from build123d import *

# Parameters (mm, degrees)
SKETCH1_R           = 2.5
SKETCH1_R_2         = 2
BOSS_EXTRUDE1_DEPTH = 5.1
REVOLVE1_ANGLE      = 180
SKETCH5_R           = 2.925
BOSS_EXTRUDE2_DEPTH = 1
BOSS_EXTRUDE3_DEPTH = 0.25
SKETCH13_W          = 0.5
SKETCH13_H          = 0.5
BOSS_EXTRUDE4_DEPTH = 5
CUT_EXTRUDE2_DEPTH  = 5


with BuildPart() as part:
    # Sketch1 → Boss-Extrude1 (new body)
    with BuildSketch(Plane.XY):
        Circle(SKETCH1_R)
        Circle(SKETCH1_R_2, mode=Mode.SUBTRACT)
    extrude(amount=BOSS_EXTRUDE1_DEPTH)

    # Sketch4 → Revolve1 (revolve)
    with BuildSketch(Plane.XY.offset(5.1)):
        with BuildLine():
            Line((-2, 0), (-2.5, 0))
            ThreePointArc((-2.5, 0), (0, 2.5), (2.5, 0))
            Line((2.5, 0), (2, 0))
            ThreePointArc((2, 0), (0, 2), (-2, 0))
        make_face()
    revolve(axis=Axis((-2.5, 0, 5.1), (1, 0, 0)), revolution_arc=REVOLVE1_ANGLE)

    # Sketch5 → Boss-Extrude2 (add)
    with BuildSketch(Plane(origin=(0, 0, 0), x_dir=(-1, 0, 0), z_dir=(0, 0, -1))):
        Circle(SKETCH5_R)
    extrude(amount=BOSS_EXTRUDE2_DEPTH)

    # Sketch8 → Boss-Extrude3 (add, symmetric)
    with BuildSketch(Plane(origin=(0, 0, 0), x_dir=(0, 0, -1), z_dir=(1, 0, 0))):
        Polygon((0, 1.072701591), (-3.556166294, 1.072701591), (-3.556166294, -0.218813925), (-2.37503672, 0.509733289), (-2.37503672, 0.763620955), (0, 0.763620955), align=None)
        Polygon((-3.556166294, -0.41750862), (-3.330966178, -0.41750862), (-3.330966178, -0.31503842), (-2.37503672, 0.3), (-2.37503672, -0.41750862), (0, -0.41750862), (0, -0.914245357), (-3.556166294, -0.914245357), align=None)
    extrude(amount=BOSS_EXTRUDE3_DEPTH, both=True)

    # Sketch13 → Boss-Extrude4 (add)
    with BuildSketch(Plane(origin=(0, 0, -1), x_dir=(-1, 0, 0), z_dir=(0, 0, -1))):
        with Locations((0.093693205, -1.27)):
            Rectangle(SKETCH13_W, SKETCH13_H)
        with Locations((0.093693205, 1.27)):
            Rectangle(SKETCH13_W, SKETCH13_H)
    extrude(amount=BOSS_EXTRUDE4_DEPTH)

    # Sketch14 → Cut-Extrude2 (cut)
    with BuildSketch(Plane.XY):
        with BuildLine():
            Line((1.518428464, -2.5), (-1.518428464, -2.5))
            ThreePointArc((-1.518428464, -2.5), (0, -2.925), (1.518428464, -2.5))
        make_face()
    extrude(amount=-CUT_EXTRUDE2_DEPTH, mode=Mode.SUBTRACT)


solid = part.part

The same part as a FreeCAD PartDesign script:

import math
import FreeCAD as App
import Part
import Sketcher
from FreeCAD import Vector

doc = App.newDocument("Part")
body = doc.addObject("PartDesign::Body", "Body")

# Sketch on XY plane
sketch1 = doc.addObject("Sketcher::SketchObject", "Sketch")
body.addObject(sketch1)
sketch1.AttachmentSupport = (doc.XY_Plane, [""])
sketch1.MapMode = "FlatFace"
sketch1.addGeometry([
    Part.Circle(Vector(0, 0, 0), Vector(0, 0, 1), 2.5),
    Part.Circle(Vector(0, 0, 0), Vector(0, 0, 1), 2),
], False)
sketch1.addConstraint([
    Sketcher.Constraint("Coincident", 0, 3, -1, 1),
    Sketcher.Constraint("Coincident", 1, 3, -1, 1),
    Sketcher.Constraint("Diameter", 0, 5.0),
    Sketcher.Constraint("Diameter", 1, 4.0),
])
pad1 = doc.addObject("PartDesign::Pad", "Pad")
body.addObject(pad1)
pad1.Profile = sketch1
pad1.Length = 5.1

# Sketch on XY plane
sketch2 = doc.addObject("Sketcher::SketchObject", "Sketch001")
body.addObject(sketch2)
sketch2.AttachmentSupport = (doc.XY_Plane, [""])
sketch2.MapMode = "FlatFace"
sketch2.AttachmentOffset = App.Placement(Vector(0, 0, 5.1), App.Rotation())
sketch2.addGeometry([
    Part.LineSegment(Vector(-2.5, 0, 0), Vector(-2, 0, 0)),
    Part.ArcOfCircle(Part.Circle(Vector(0, 0, 0), Vector(0, 0, 1), 2), math.radians(0), math.radians(180)),
    Part.LineSegment(Vector(2, 0, 0), Vector(2.5, 0, 0)),
    Part.ArcOfCircle(Part.Circle(Vector(0, 0, 0), Vector(0, 0, 1), 2.5), math.radians(0), math.radians(180)),
], False)
sketch2.addConstraint([
    Sketcher.Constraint("Coincident", 0, 2, 1, 2),
    Sketcher.Constraint("Coincident", 1, 1, 2, 1),
    Sketcher.Constraint("Coincident", 2, 2, 3, 1),
    Sketcher.Constraint("Coincident", 3, 2, 0, 1),
    Sketcher.Constraint("Horizontal", 0),
    Sketcher.Constraint("Horizontal", 2),
    Sketcher.Constraint("Coincident", 1, 3, -1, 1),
    Sketcher.Constraint("Coincident", 3, 3, -1, 1),
    Sketcher.Constraint("PointOnObject", 0, 2, -1),
    Sketcher.Constraint("PointOnObject", 1, 1, -1),
    Sketcher.Constraint("Radius", 1, 2.0),
    Sketcher.Constraint("Radius", 3, 2.5),
])
revolution = doc.addObject("PartDesign::Revolution", "Revolution")
body.addObject(revolution)
revolution.Profile = sketch2
revolution.ReferenceAxis = (sketch2, ["H_Axis"])
revolution.Angle = 180

# Sketch on XY plane
sketch3 = doc.addObject("Sketcher::SketchObject", "Sketch002")
body.addObject(sketch3)
sketch3.AttachmentSupport = (doc.XY_Plane, [""])
sketch3.MapMode = "FlatFace"
sketch3.addGeometry(Part.Circle(Vector(0, 0, 0), Vector(0, 0, 1), 2.9), False)
sketch3.addConstraint([
    Sketcher.Constraint("Coincident", 0, 3, -1, 1),
    Sketcher.Constraint("Diameter", 0, 5.85),
])
pad2 = doc.addObject("PartDesign::Pad", "Pad001")
body.addObject(pad2)
pad2.Profile = sketch3
pad2.Length = 1
pad2.Reversed = True

# Sketch on YZ plane
sketch4 = doc.addObject("Sketcher::SketchObject", "Sketch003")
body.addObject(sketch4)
sketch4.AttachmentSupport = (doc.YZ_Plane, [""])
sketch4.MapMode = "FlatFace"
sketch4.addGeometry([
    Part.LineSegment(Vector(1.07, 0, 0), Vector(1.07, 3.56, 0)),  # 0
    Part.LineSegment(Vector(1.07, 3.56, 0), Vector(-0.22, 3.56, 0)),  # 1
    Part.LineSegment(Vector(-0.22, 3.56, 0), Vector(0.51, 2.38, 0)),  # 2
    Part.LineSegment(Vector(0.51, 2.38, 0), Vector(0.76, 2.38, 0)),  # 3
    Part.LineSegment(Vector(0.76, 2.38, 0), Vector(0.76, 0, 0)),  # 4
    Part.LineSegment(Vector(0.76, 0, 0), Vector(1.07, 0, 0)),  # 5
    Part.LineSegment(Vector(-0.42, 3.33, 0), Vector(-0.42, 3.56, 0)),  # 6
    Part.LineSegment(Vector(-0.42, 3.56, 0), Vector(-0.91, 3.56, 0)),  # 7
    Part.LineSegment(Vector(-0.91, 3.56, 0), Vector(-0.91, 0, 0)),  # 8
    Part.LineSegment(Vector(-0.91, 0, 0), Vector(-0.42, 0, 0)),  # 9
    Part.LineSegment(Vector(-0.42, 0, 0), Vector(-0.42, 2.38, 0)),  # 10
    Part.LineSegment(Vector(-0.42, 2.38, 0), Vector(0.3, 2.38, 0)),  # 11
    Part.LineSegment(Vector(0.3, 2.38, 0), Vector(-0.32, 3.33, 0)),  # 12
    Part.LineSegment(Vector(-0.32, 3.33, 0), Vector(-0.42, 3.33, 0)),  # 13
], False)
sketch4.addConstraint([
    Sketcher.Constraint("Coincident", 0, 2, 1, 1),
    Sketcher.Constraint("Coincident", 1, 2, 2, 1),
    Sketcher.Constraint("Coincident", 2, 2, 3, 1),
    Sketcher.Constraint("Coincident", 3, 2, 4, 1),
    Sketcher.Constraint("Coincident", 4, 2, 5, 1),
    Sketcher.Constraint("Coincident", 5, 2, 0, 1),
    Sketcher.Constraint("Coincident", 6, 2, 7, 1),
    Sketcher.Constraint("Coincident", 7, 2, 8, 1),
    Sketcher.Constraint("Coincident", 8, 2, 9, 1),
    Sketcher.Constraint("Coincident", 9, 2, 10, 1),
    Sketcher.Constraint("Coincident", 10, 2, 11, 1),
    Sketcher.Constraint("Coincident", 11, 2, 12, 1),
    Sketcher.Constraint("Coincident", 12, 2, 13, 1),
    Sketcher.Constraint("Coincident", 13, 2, 6, 1),
    Sketcher.Constraint("Vertical", 0),
    Sketcher.Constraint("Horizontal", 1),
    Sketcher.Constraint("Horizontal", 3),
    Sketcher.Constraint("Vertical", 4),
    Sketcher.Constraint("Horizontal", 5),
    Sketcher.Constraint("Vertical", 6),
    Sketcher.Constraint("Horizontal", 7),
    Sketcher.Constraint("Vertical", 8),
    Sketcher.Constraint("Horizontal", 9),
    Sketcher.Constraint("Vertical", 10),
    Sketcher.Constraint("Horizontal", 11),
    Sketcher.Constraint("Horizontal", 13),
    Sketcher.Constraint("PointOnObject", 4, 2, -1),
    Sketcher.Constraint("PointOnObject", 8, 2, -1),
    Sketcher.Constraint("Horizontal", 1, 2, 6, 2),
    Sketcher.Constraint("Horizontal", 3, 2, 10, 2),
    Sketcher.Constraint("Vertical", 6, 2, 9, 2),
    Sketcher.Constraint("DistanceX", -1, 1, 11, 2, 0.3),
    Sketcher.Constraint("DistanceY", 6, 1, 6, 2, 0.2252),
    Sketcher.Constraint("DistanceX", 5, 1, 5, 2, 0.309081),
    Sketcher.Constraint("DistanceX", 11, 1, 11, 2, 0.717509),
    Sketcher.Constraint("DistanceX", 13, 2, 13, 1, 0.10247),
    Sketcher.Constraint("DistanceX", -1, 1, 0, 2, 1.072702),
    Sketcher.Constraint("Distance", 2, 1.387749),
    Sketcher.Constraint("DistanceX", 1, 2, 1, 1, 1.291516),
    Sketcher.Constraint("DistanceX", 3, 1, 3, 2, 0.253888),
    Sketcher.Constraint("DistanceX", 7, 2, 7, 1, 0.496737),
    Sketcher.Constraint("DistanceY", 0, 1, 0, 2, 3.556166),
])
pad3 = doc.addObject("PartDesign::Pad", "Pad002")
body.addObject(pad3)
pad3.Profile = sketch4
pad3.Length = 0.5
pad3.Midplane = True

# Sketch on XY plane
sketch5 = doc.addObject("Sketcher::SketchObject", "Sketch004")
body.addObject(sketch5)
sketch5.AttachmentSupport = (doc.XY_Plane, [""])
sketch5.MapMode = "FlatFace"
sketch5.AttachmentOffset = App.Placement(Vector(0, 0, -1), App.Rotation())
sketch5.addGeometry([
    Part.LineSegment(Vector(0.2, -1, 0), Vector(0.2, -1.5, 0)),  # 0
    Part.LineSegment(Vector(0.2, -1.5, 0), Vector(-0.3, -1.5, 0)),  # 1
    Part.LineSegment(Vector(-0.3, -1.5, 0), Vector(-0.3, -1, 0)),  # 2
    Part.LineSegment(Vector(-0.3, -1, 0), Vector(0.2, -1, 0)),  # 3
    Part.LineSegment(Vector(0.2, 1.5, 0), Vector(0.2, 1, 0)),  # 4
    Part.LineSegment(Vector(0.2, 1, 0), Vector(-0.3, 1, 0)),  # 5
    Part.LineSegment(Vector(-0.3, 1, 0), Vector(-0.3, 1.5, 0)),  # 6
    Part.LineSegment(Vector(-0.3, 1.5, 0), Vector(0.2, 1.5, 0)),  # 7
], False)
sketch5.addConstraint([
    Sketcher.Constraint("Coincident", 0, 2, 1, 1),
    Sketcher.Constraint("Coincident", 1, 2, 2, 1),
    Sketcher.Constraint("Coincident", 2, 2, 3, 1),
    Sketcher.Constraint("Coincident", 3, 2, 0, 1),
    Sketcher.Constraint("Coincident", 4, 2, 5, 1),
    Sketcher.Constraint("Coincident", 5, 2, 6, 1),
    Sketcher.Constraint("Coincident", 6, 2, 7, 1),
    Sketcher.Constraint("Coincident", 7, 2, 4, 1),
    Sketcher.Constraint("Vertical", 0),
    Sketcher.Constraint("Horizontal", 1),
    Sketcher.Constraint("Vertical", 2),
    Sketcher.Constraint("Horizontal", 3),
    Sketcher.Constraint("Vertical", 4),
    Sketcher.Constraint("Horizontal", 5),
    Sketcher.Constraint("Vertical", 6),
    Sketcher.Constraint("Horizontal", 7),
    Sketcher.Constraint("Symmetric", 3, 2, 4, 2, -1),
    Sketcher.Constraint("Symmetric", 1, 2, 6, 2, -1),
    Sketcher.Constraint("Equal", 7, 0),
    Sketcher.Constraint("DistanceX", 1, 2, 1, 1, 0.5),
    Sketcher.Constraint("DistanceY", 0, 2, -1, 1, 1.52),
    Sketcher.Constraint("DistanceX", -1, 1, 0, 2, 0.156307),
])
pad4 = doc.addObject("PartDesign::Pad", "Pad003")
body.addObject(pad4)
pad4.Profile = sketch5
pad4.Length = 5
pad4.Reversed = True

# Sketch on XY plane
sketch6 = doc.addObject("Sketcher::SketchObject", "Sketch005")
body.addObject(sketch6)
sketch6.AttachmentSupport = (doc.XY_Plane, [""])
sketch6.MapMode = "FlatFace"
sketch6.addGeometry([
    Part.LineSegment(Vector(1.5, -2.5, 0), Vector(-1.5, -2.5, 0)),
    Part.ArcOfCircle(Part.Circle(Vector(0, 0, 0), Vector(0, 0, 1), 2.9), math.radians(-121), math.radians(-59)),
], False)
sketch6.addConstraint([
    Sketcher.Constraint("Coincident", 0, 1, 1, 2),
    Sketcher.Constraint("Coincident", 1, 1, 0, 2),
    Sketcher.Constraint("Horizontal", 0),
    Sketcher.Constraint("Coincident", 1, 3, -1, 1),
    Sketcher.Constraint("Radius", 1, 2.925),
    Sketcher.Constraint("DistanceY", 0, 1, -1, 1, 2.5),
])
pocket1 = doc.addObject("PartDesign::Pocket", "Pocket")
body.addObject(pocket1)
pocket1.Profile = sketch6
pocket1.Length = 5

doc.recompute()
